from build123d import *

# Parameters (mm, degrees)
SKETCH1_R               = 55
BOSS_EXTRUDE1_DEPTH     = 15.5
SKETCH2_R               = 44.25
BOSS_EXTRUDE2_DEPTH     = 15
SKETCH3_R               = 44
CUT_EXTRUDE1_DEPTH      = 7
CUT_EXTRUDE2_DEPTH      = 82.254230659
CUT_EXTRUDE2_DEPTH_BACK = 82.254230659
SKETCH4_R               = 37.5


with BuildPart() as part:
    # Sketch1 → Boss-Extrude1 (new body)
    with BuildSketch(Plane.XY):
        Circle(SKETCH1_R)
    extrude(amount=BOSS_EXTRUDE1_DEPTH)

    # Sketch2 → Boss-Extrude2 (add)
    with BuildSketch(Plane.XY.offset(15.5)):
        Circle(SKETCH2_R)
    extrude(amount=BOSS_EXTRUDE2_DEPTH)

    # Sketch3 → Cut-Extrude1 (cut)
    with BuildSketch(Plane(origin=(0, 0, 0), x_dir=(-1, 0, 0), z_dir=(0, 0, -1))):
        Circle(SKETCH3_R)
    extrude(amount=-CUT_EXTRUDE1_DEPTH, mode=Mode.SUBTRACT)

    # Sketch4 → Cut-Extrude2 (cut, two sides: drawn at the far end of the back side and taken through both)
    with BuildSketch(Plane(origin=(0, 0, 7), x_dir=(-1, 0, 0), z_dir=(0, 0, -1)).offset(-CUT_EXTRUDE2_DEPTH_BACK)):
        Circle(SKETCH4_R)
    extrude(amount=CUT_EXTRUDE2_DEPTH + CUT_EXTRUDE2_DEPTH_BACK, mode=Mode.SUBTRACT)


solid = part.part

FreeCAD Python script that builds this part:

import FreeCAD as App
import Part
import Sketcher
from FreeCAD import Vector
Q = App.Units.Quantity

doc = App.newDocument("Part")
body = doc.addObject("PartDesign::Body", "Body")

sketch1 = body.newObject("Sketcher::SketchObject", "Sketch")
sketch1.AttachmentSupport = (doc.getObject("XY_Plane"), [""])
sketch1.MapMode = "FlatFace"
sketch1.addGeometry(Part.Circle(Vector(0, 0, 0), Vector(0, 0, 1), 55), False)
sketch1.addConstraint([
    Sketcher.Constraint("Coincident", 0, 3, -1, 1),
    Sketcher.Constraint("Diameter", 0, Q("110 mm")),
])
pad1 = body.newObject("PartDesign::Pad", "Pad")
pad1.Profile = sketch1
pad1.Length = 15.5

sketch2 = body.newObject("Sketcher::SketchObject", "Sketch001")
sketch2.AttachmentSupport = (doc.getObject("XY_Plane"), [""])
sketch2.MapMode = "FlatFace"
sketch2.AttachmentOffset = App.Placement(Vector(0, 0, 15.5), App.Rotation())
sketch2.addGeometry(Part.Circle(Vector(0, 0, 0), Vector(0, 0, 1), 44), False)
sketch2.addConstraint([
    Sketcher.Constraint("Coincident", 0, 3, -1, 1),
    Sketcher.Constraint("Diameter", 0, Q("88.5 mm")),
])
pad2 = body.newObject("PartDesign::Pad", "Pad001")
pad2.Profile = sketch2
pad2.Length = 15

sketch3 = body.newObject("Sketcher::SketchObject", "Sketch002")
sketch3.AttachmentSupport = (doc.getObject("XY_Plane"), [""])
sketch3.MapMode = "FlatFace"
sketch3.addGeometry(Part.Circle(Vector(0, 0, 0), Vector(0, 0, 1), 44), False)
sketch3.addConstraint([
    Sketcher.Constraint("Coincident", 0, 3, -1, 1),
    Sketcher.Constraint("Diameter", 0, Q("88 mm")),
])
pocket1 = body.newObject("PartDesign::Pocket", "Pocket")
pocket1.Profile = sketch3
pocket1.Length = 7
pocket1.Reversed = True

sketch4 = body.newObject("Sketcher::SketchObject", "Sketch003")
sketch4.AttachmentSupport = (doc.getObject("XY_Plane"), [""])
sketch4.MapMode = "FlatFace"
sketch4.AttachmentOffset = App.Placement(Vector(0, 0, 7), App.Rotation())
sketch4.addGeometry(Part.Circle(Vector(0, 0, 0), Vector(0, 0, 1), 38), False)
sketch4.addConstraint([
    Sketcher.Constraint("Coincident", 0, 3, -1, 1),
    Sketcher.Constraint("Diameter", 0, Q("75 mm")),
])
pocket2 = body.newObject("PartDesign::Pocket", "Pocket001")
pocket2.Profile = sketch4
pocket2.Type = "ThroughAll"
pocket2.Midplane = True

doc.recompute()
